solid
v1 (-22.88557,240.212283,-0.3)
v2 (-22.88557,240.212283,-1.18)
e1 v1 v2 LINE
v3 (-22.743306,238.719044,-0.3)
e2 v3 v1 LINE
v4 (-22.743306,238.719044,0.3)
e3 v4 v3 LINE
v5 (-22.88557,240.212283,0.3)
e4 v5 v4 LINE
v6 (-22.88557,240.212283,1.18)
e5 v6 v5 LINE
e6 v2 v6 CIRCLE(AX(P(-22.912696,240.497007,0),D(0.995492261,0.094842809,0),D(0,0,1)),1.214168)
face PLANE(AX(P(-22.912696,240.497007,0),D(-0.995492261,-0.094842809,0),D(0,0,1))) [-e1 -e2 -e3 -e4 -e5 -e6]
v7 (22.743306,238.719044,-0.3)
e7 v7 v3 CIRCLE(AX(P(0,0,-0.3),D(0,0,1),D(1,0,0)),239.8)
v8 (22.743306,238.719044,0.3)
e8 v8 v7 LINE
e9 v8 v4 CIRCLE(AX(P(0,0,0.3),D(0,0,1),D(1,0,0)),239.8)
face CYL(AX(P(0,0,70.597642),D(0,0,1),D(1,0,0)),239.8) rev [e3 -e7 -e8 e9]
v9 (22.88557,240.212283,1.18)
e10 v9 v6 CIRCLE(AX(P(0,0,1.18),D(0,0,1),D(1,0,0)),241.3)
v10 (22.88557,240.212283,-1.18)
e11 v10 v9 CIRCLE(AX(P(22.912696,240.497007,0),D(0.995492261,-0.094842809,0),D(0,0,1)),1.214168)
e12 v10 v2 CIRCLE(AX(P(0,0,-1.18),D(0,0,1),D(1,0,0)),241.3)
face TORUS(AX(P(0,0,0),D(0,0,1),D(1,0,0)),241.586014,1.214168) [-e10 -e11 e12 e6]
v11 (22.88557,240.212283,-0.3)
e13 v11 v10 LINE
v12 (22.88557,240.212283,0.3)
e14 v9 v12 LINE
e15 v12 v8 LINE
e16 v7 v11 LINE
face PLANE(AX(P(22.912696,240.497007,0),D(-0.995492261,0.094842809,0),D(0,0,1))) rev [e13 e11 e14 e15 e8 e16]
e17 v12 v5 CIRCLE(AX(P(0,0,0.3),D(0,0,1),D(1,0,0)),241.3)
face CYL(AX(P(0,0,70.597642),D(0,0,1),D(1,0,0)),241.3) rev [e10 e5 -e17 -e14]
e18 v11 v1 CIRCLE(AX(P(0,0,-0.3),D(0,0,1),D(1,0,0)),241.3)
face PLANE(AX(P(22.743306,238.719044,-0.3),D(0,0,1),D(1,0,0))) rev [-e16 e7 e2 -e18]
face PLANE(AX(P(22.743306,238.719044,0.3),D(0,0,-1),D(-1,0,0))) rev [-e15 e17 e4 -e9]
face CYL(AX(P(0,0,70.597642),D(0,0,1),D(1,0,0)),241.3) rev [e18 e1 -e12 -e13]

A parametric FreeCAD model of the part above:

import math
import FreeCAD as App
import Part
import Sketcher
from FreeCAD import Vector
Q = App.Units.Quantity

doc = App.newDocument("Part")
body = doc.addObject("PartDesign::Body", "Body")

sketch1 = doc.addObject("Sketcher::SketchObject", "Sketch")
body.addObject(sketch1)
sketch1.AttachmentSupport = (doc.YZ_Plane, [""])
sketch1.MapMode = "FlatFace"
sketch1.addGeometry(Part.LineSegment(Vector(239.8, -0.3, 0), Vector(241.3, -0.3, 0)), False)
sketch1.addGeometry(Part.LineSegment(Vector(241.3, -0.3, 0), Vector(241.3, -1.2, 0)), False)
sketch1.addGeometry(Part.ArcOfCircle(Part.Circle(Vector(241.6, 0, 0), Vector(0, 0, 1), 1.2), math.radians(-104), math.radians(104)), False)
sketch1.addGeometry(Part.LineSegment(Vector(241.3, 1.2, 0), Vector(241.3, 0.3, 0)), False)
sketch1.addGeometry(Part.LineSegment(Vector(241.3, 0.3, 0), Vector(239.8, 0.3, 0)), False)
sketch1.addGeometry(Part.LineSegment(Vector(239.8, 0.3, 0), Vector(239.8, -0.3, 0)), False)
sketch1.addConstraint(Sketcher.Constraint("Coincident", 0, 2, 1, 1))
sketch1.addConstraint(Sketcher.Constraint("Coincident", 1, 2, 2, 1))
sketch1.addConstraint(Sketcher.Constraint("Coincident", 2, 2, 3, 1))
sketch1.addConstraint(Sketcher.Constraint("Coincident", 3, 2, 4, 1))
sketch1.addConstraint(Sketcher.Constraint("Coincident", 4, 2, 5, 1))
sketch1.addConstraint(Sketcher.Constraint("Coincident", 5, 2, 0, 1))
sketch1.addConstraint(Sketcher.Constraint("Horizontal", 0))
sketch1.addConstraint(Sketcher.Constraint("Vertical", 1))
sketch1.addConstraint(Sketcher.Constraint("Vertical", 3))
sketch1.addConstraint(Sketcher.Constraint("Horizontal", 4))
sketch1.addConstraint(Sketcher.Constraint("Vertical", 5))
sketch1.addConstraint(Sketcher.Constraint("Symmetric", 1, 2, 2, 2, -1))
sketch1.addConstraint(Sketcher.Constraint("Equal", 1, 3))
sketch1.addConstraint(Sketcher.Constraint("DistanceX", 0, 1, 0, 2, Q("1.5 mm")))
sketch1.addConstraint(Sketcher.Constraint("DistanceY", 5, 2, 5, 1, Q("0.6 mm")))
sketch1.addConstraint(Sketcher.Constraint("DistanceY", 1, 2, 1, 1, Q("0.88 mm")))
sketch1.addConstraint(Sketcher.Constraint("DistanceX", -1, 1, 0, 2, Q("241.3 mm")))
sketch1.addConstraint(Sketcher.Constraint("Radius", 2, Q("1.214168 mm")))
revolution = doc.addObject("PartDesign::Revolution", "Revolution")
body.addObject(revolution)
revolution.Profile = sketch1
revolution.ReferenceAxis = (sketch1, ["V_Axis"])
revolution.Angle = 5.442273
revolution.Reversed = True

sketch2 = doc.addObject("Sketcher::SketchObject", "Sketch001")
body.addObject(sketch2)
sketch2.AttachmentSupport = (doc.YZ_Plane, [""])
sketch2.MapMode = "FlatFace"
sketch2.addGeometry(Part.LineSegment(Vector(239.8, -0.3, 0), Vector(241.3, -0.3, 0)), False)
sketch2.addGeometry(Part.LineSegment(Vector(241.3, -0.3, 0), Vector(241.3, -1.2, 0)), False)
sketch2.addGeometry(Part.ArcOfCircle(Part.Circle(Vector(241.6, 0, 0), Vector(0, 0, 1), 1.2), math.radians(-104), math.radians(104)), False)
sketch2.addGeometry(Part.LineSegment(Vector(241.3, 1.2, 0), Vector(241.3, 0.3, 0)), False)
sketch2.addGeometry(Part.LineSegment(Vector(241.3, 0.3, 0), Vector(239.8, 0.3, 0)), False)
sketch2.addGeometry(Part.LineSegment(Vector(239.8, 0.3, 0), Vector(239.8, -0.3, 0)), False)
sketch2.addConstraint(Sketcher.Constraint("Coincident", 0, 2, 1, 1))
sketch2.addConstraint(Sketcher.Constraint("Coincident", 1, 2, 2, 1))
sketch2.addConstraint(Sketcher.Constraint("Coincident", 2, 2, 3, 1))
sketch2.addConstraint(Sketcher.Constraint("Coincident", 3, 2, 4, 1))
sketch2.addConstraint(Sketcher.Constraint("Coincident", 4, 2, 5, 1))
sketch2.addConstraint(Sketcher.Constraint("Coincident", 5, 2, 0, 1))
sketch2.addConstraint(Sketcher.Constraint("Horizontal", 0))
sketch2.addConstraint(Sketcher.Constraint("Vertical", 1))
sketch2.addConstraint(Sketcher.Constraint("Vertical", 3))
sketch2.addConstraint(Sketcher.Constraint("Horizontal", 4))
sketch2.addConstraint(Sketcher.Constraint("Vertical", 5))
sketch2.addConstraint(Sketcher.Constraint("Symmetric", 1, 2, 2, 2, -1))
sketch2.addConstraint(Sketcher.Constraint("Equal", 1, 3))
sketch2.addConstraint(Sketcher.Constraint("DistanceX", 0, 1, 0, 2, Q("1.5 mm")))
sketch2.addConstraint(Sketcher.Constraint("DistanceY", 5, 2, 5, 1, Q("0.6 mm")))
sketch2.addConstraint(Sketcher.Constraint("DistanceY", 1, 2, 1, 1, Q("0.88 mm")))
sketch2.addConstraint(Sketcher.Constraint("DistanceX", -1, 1, 0, 2, Q("241.3 mm")))
sketch2.addConstraint(Sketcher.Constraint("Radius", 2, Q("1.214168 mm")))
revolution2 = doc.addObject("PartDesign::Revolution", "Revolution001")
body.addObject(revolution2)
revolution2.Profile = sketch2
revolution2.ReferenceAxis = (sketch2, ["V_Axis"])
revolution2.Angle = 5.442273

doc.recompute()
